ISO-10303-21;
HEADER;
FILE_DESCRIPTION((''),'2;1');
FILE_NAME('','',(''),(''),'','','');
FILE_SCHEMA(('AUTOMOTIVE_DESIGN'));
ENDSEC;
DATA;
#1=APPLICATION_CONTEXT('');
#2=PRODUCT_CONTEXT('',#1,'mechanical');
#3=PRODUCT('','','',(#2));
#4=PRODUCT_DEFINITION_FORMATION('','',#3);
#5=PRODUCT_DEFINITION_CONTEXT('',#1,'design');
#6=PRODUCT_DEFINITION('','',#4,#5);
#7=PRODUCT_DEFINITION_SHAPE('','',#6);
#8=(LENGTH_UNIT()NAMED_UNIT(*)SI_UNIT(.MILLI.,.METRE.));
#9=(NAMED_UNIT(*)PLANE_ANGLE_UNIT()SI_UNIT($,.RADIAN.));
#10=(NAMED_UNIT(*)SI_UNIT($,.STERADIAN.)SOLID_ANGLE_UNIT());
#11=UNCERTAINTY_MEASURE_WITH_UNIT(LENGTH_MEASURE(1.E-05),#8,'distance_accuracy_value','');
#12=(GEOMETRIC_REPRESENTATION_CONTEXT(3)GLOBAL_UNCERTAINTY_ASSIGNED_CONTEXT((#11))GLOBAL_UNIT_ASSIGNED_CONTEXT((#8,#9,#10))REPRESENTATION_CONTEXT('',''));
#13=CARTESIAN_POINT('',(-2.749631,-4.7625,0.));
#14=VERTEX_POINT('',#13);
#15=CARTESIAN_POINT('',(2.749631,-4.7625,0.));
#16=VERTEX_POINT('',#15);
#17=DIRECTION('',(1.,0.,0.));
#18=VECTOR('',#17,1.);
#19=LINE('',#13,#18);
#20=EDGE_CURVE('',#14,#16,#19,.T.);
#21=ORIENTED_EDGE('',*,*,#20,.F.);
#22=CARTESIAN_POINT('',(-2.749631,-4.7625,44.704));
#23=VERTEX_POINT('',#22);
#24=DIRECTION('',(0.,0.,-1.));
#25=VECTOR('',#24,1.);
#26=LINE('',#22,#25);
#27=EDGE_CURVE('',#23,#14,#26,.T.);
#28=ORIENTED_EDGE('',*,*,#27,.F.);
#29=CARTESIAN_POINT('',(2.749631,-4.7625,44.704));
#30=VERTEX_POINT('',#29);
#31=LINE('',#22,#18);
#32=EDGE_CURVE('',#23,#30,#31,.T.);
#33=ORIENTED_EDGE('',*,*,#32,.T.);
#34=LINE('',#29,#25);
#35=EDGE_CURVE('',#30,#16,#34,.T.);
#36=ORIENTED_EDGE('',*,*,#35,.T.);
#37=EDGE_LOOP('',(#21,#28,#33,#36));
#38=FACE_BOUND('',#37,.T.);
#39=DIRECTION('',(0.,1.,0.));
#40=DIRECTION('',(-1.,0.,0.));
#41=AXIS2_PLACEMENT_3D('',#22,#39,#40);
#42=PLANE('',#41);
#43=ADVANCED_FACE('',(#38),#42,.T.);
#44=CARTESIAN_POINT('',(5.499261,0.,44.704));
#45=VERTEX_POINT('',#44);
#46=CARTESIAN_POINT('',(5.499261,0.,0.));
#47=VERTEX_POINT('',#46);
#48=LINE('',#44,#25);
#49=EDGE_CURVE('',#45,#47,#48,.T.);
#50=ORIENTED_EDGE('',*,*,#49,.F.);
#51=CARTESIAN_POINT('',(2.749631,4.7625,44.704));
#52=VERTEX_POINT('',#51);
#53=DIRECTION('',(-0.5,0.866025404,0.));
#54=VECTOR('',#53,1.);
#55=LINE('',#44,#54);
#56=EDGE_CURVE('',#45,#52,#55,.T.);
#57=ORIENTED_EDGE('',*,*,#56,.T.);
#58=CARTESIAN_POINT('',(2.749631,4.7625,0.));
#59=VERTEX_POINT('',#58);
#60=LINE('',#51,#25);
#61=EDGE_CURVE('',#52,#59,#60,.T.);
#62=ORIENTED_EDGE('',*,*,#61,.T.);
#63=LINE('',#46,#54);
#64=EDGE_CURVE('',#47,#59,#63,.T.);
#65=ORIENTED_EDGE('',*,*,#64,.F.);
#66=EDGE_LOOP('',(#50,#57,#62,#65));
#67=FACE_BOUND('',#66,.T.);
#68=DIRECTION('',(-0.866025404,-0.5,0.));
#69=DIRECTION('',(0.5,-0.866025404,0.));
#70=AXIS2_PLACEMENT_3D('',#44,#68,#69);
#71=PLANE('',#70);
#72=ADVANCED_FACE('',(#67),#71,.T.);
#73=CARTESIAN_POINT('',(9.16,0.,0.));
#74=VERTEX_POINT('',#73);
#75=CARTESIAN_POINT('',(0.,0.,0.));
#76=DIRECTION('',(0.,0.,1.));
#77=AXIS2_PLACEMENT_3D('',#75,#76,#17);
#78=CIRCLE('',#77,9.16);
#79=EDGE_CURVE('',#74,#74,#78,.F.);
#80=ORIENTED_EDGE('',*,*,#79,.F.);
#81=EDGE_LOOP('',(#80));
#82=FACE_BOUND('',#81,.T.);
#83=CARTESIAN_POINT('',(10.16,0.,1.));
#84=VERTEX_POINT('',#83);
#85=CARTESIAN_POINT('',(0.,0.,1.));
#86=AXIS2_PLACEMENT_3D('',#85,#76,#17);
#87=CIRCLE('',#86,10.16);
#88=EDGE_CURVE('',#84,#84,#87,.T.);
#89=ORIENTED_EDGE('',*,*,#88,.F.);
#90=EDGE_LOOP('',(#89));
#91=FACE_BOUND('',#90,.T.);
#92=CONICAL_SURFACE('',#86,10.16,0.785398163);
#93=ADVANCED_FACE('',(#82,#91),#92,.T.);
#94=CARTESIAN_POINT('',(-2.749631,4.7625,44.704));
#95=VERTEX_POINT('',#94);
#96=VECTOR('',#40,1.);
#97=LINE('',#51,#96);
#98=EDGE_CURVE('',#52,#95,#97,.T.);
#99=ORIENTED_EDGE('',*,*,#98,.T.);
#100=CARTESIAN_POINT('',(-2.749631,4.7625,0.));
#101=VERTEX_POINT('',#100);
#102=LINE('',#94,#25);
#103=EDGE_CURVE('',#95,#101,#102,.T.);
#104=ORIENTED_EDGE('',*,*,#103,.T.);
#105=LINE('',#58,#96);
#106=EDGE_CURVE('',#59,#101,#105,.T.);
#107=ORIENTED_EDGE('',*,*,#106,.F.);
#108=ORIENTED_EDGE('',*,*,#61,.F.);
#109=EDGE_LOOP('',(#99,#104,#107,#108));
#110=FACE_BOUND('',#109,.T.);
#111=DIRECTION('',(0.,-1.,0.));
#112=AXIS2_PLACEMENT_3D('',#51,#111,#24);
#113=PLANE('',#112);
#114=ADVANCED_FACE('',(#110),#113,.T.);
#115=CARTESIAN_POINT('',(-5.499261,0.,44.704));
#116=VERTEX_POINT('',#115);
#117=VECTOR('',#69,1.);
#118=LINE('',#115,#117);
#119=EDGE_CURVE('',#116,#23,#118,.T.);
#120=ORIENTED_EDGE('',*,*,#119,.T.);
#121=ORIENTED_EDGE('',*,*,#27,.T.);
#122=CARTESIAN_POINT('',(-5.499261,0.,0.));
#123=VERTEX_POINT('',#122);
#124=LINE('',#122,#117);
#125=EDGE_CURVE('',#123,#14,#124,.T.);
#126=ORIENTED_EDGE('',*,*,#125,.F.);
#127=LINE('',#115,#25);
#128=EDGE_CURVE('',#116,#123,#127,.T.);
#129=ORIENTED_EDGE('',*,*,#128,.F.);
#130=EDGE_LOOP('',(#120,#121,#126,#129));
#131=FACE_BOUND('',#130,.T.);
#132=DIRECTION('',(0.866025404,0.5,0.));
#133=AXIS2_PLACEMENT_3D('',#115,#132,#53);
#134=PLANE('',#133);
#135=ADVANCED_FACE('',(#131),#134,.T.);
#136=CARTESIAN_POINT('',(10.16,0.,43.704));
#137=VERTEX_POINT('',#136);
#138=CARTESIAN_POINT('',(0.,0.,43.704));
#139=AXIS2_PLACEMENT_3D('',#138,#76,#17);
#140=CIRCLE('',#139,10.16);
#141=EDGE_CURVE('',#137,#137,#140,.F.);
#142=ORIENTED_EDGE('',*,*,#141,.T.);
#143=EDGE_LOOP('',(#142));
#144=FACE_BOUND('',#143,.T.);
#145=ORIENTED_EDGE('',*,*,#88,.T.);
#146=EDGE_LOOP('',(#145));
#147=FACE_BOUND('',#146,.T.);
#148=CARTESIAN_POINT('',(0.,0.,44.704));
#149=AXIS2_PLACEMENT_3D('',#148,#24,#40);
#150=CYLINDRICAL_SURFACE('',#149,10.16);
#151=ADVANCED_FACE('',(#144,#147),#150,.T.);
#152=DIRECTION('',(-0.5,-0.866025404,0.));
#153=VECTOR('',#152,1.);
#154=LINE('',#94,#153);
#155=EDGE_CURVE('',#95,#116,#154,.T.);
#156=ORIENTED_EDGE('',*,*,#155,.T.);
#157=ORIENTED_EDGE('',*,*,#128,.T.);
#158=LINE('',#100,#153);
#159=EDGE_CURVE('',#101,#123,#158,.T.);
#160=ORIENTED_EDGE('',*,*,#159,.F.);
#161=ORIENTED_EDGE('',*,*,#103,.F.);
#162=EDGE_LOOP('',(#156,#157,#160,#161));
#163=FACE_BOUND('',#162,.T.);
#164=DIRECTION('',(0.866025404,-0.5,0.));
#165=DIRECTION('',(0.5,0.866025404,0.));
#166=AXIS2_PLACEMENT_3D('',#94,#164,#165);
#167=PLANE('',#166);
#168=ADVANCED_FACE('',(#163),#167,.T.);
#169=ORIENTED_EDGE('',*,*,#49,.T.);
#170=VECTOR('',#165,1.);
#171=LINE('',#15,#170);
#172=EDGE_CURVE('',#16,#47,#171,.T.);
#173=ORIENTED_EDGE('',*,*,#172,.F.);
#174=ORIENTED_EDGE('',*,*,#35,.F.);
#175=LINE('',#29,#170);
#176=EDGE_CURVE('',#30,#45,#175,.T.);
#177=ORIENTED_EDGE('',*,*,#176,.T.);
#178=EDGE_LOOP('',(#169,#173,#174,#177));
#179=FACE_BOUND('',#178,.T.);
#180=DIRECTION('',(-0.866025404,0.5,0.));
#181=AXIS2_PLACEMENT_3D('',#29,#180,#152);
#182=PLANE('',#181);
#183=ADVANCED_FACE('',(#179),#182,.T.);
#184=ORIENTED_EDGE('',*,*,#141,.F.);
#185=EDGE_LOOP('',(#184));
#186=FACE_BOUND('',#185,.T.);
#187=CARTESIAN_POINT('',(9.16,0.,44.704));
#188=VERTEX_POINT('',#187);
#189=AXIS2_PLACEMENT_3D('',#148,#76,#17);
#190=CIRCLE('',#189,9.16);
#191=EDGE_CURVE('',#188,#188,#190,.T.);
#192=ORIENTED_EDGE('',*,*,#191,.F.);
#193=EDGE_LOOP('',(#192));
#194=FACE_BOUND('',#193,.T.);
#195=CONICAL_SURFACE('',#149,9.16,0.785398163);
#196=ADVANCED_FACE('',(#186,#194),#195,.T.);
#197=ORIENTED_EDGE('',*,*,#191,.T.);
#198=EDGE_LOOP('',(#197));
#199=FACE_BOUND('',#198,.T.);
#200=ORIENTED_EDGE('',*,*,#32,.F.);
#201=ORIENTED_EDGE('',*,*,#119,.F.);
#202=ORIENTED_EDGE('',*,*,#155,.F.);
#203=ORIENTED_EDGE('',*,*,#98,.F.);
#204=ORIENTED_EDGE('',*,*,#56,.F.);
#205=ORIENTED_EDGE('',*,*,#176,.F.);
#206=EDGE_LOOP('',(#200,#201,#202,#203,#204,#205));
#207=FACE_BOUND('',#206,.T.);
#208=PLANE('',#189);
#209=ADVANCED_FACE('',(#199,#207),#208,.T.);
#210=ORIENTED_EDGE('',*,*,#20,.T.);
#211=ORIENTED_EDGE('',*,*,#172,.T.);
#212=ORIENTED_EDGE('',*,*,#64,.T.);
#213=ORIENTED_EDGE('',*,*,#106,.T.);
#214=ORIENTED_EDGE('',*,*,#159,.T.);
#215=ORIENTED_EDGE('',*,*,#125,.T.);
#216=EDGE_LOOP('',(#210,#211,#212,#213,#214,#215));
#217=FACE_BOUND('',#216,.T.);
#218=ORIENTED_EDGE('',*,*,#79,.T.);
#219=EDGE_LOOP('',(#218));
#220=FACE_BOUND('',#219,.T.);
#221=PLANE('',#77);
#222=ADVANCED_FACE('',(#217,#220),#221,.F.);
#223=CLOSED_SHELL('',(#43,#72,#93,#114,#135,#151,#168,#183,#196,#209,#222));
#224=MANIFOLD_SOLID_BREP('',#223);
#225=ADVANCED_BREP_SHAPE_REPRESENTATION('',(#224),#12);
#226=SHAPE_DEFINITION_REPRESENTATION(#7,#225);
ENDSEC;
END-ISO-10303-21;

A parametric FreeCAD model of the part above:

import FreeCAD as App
import Part
import Sketcher
from FreeCAD import Vector
Q = App.Units.Quantity


def edges_at(feature, points):
    """Names of the edges that pass closest to the given points."""
    edges = feature.Shape.Edges
    near = lambda p: min(range(len(edges)), key=lambda i: edges[i].distToShape(Part.Vertex(*p))[0])
    return sorted({f"Edge{near(p) + 1}" for p in points})


def add_polygon(sketch, points):
    """Adds a closed chain of lines whose ends are joined by coincident constraints."""
    first, n = sketch.GeometryCount, len(points)
    for a, b in zip(points, points[1:] + points[:1]):
        sketch.addGeometry(Part.LineSegment(App.Vector(*a, 0), App.Vector(*b, 0)), False)
    for i in range(n):
        sketch.addConstraint(Sketcher.Constraint("Coincident", first + i, 2, first + (i + 1) % n, 1))

doc = App.newDocument("Part")
body = doc.addObject("PartDesign::Body", "Body")

sketch1 = body.newObject("Sketcher::SketchObject", "Sketch")
sketch1.AttachmentSupport = (doc.getObject("XY_Plane"), [""])
sketch1.MapMode = "FlatFace"
sketch1.addGeometry(Part.Circle(Vector(0, 0, 0), Vector(0, 0, 1), 10.16), False)
add_polygon(sketch1, [(2.749631, 4.7625), (5.499261, 0), (2.749631, -4.7625), (-2.749631, -4.7625), (-5.499261, 0), (-2.749631, 4.7625)])
sketch1.addConstraint([
    Sketcher.Constraint("Horizontal", 3),
    Sketcher.Constraint("Horizontal", 6),
    Sketcher.Constraint("Coincident", 0, 3, -1, 1),
    Sketcher.Constraint("Symmetric", 1, 2, 4, 2, -1, 1),
    Sketcher.Constraint("Symmetric", 2, 2, 5, 2, -1, 1),
    Sketcher.Constraint("PointOnObject", 1, 2, -1),
    Sketcher.Constraint("Parallel", 1, 4),
    Sketcher.Constraint("Vertical", 3, 2, 5, 2),
    Sketcher.Constraint("Diameter", 0, Q("0.8 in")),
    Sketcher.Constraint("Angle", 1, Q("-60 deg")),
    Sketcher.Constraint("DistanceY", 2, 2, -1, 1, Q("0.1875 in")),
    Sketcher.Constraint("DistanceX", 3, 2, 3, 1, 5.499261),
])
pad1 = body.newObject("PartDesign::Pad", "Pad")
pad1.Profile = sketch1
pad1.Length = Q("1.76 in")
doc.recompute()

chamfer = body.newObject("PartDesign::Chamfer", "Chamfer")
chamfer.Base = (pad1, edges_at(pad1, [(-10.16, 0, 0), (-10.16, 0, 44.704)]))
chamfer.Size = 1

doc.recompute()
